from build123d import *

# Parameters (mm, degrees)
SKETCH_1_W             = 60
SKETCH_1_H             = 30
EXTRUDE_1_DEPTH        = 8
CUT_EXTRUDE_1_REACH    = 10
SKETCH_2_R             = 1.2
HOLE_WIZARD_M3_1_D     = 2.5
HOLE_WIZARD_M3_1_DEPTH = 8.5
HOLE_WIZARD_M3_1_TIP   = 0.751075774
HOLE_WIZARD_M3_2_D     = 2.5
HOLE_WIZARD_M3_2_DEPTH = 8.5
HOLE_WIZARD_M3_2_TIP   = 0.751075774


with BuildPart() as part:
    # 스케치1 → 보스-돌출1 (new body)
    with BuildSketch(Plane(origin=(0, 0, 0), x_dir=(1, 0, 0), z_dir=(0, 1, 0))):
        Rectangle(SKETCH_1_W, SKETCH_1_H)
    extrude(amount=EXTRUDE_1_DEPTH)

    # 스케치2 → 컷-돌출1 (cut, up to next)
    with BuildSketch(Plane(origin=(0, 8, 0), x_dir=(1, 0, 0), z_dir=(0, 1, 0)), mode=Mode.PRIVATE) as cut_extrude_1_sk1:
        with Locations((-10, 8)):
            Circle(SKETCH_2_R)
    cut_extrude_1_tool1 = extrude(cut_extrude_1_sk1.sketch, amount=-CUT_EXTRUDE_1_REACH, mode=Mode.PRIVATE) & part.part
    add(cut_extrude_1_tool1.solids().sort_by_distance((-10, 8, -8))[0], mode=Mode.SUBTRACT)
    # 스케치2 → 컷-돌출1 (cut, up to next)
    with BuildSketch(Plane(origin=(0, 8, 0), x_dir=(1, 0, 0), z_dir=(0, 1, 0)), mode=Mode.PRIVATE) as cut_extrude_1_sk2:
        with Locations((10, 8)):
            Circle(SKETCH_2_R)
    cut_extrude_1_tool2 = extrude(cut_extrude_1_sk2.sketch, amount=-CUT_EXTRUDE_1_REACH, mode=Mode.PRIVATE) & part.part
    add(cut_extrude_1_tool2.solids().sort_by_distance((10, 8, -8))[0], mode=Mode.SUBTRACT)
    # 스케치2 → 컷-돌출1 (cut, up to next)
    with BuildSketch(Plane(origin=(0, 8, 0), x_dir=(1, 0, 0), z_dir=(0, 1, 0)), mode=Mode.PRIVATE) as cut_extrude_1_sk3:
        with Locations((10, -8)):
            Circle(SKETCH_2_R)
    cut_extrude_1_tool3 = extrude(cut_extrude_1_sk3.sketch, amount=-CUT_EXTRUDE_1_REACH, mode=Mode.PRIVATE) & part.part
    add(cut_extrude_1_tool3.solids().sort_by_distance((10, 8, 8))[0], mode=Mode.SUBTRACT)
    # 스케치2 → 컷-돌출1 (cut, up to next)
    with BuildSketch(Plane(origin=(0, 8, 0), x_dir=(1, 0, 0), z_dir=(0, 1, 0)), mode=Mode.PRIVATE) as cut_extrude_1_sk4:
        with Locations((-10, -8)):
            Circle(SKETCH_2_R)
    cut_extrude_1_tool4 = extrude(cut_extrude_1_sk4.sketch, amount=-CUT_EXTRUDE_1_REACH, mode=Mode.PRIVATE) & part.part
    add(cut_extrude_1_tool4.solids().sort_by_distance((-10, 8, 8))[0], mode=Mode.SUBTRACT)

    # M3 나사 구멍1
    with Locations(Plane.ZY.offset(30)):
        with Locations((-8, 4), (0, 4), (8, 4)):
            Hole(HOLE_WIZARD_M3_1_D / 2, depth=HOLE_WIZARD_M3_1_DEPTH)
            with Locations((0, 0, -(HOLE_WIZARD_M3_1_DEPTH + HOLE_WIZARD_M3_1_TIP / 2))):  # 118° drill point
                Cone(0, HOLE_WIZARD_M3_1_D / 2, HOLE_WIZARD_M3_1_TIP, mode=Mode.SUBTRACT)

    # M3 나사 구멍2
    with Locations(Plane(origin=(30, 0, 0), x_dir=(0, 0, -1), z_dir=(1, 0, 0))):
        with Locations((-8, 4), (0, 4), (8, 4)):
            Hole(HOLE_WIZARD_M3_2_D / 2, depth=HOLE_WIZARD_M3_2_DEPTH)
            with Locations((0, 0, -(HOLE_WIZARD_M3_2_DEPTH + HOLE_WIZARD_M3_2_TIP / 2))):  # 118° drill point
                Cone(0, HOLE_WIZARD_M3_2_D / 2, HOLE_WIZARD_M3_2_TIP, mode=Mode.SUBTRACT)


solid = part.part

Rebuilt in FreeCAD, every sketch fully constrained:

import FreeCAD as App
import Part
import Sketcher

V = App.Vector
Q = App.Units.Quantity


def add_polygon(sketch, points):
    """Adds a closed chain of lines whose ends are joined by coincident constraints."""
    first, n = sketch.GeometryCount, len(points)
    for a, b in zip(points, points[1:] + points[:1]):
        sketch.addGeometry(Part.LineSegment(App.Vector(*a, 0), App.Vector(*b, 0)), False)
    for i in range(n):
        sketch.addConstraint(Sketcher.Constraint("Coincident", first + i, 2, first + (i + 1) % n, 1))

doc = App.newDocument("Part")
params = doc.addObject("Spreadsheet::Sheet", "Params")
for row, (alias, value) in enumerate([
    ("sketch1_width", "60 mm"),
    ("sketch1_height", "30 mm"),
    ("pad1_length", "8 mm"),
    ("sketch2_diameter", "2.4 mm"),
    ("sketch3_diameter", "2.4 mm"),
    ("sketch4_diameter", "2.4 mm"),
    ("sketch5_diameter", "2.4 mm"),
    ("sketch6_diameter", "2.5 mm"),
    ("hole_diameter", "2.5 mm"),
    ("hole_depth", "8.5 mm"),
    ("sketch7_diameter", "2.5 mm"),
    ("hole2_diameter", "2.5 mm"),
    ("hole2_depth", "8.5 mm"),
], start=1):
    params.set(f"A{row}", alias)
    params.set(f"B{row}", "=" + value)
    params.setAlias(f"B{row}", alias)

body = doc.addObject("PartDesign::Body", "Body")

# Sketch on XZ plane
sketch1 = doc.addObject("Sketcher::SketchObject", "Sketch")
body.addObject(sketch1)
sketch1.AttachmentSupport = (doc.XZ_Plane, [""])
sketch1.MapMode = "FlatFace"
add_polygon(sketch1, [(-30, -15), (-30, 15), (30, 15), (30, -15)])  # lines 0-3
sketch1.addConstraint([
    Sketcher.Constraint("Vertical", 0),
    Sketcher.Constraint("Horizontal", 1),
    Sketcher.Constraint("Vertical", 2),
    Sketcher.Constraint("Horizontal", 3),
    Sketcher.Constraint("Symmetric", 0, 2, 2, 2, -1, 1),
    Sketcher.Constraint("DistanceX", 1, 1, 1, 2, Q("60 mm")),
    Sketcher.Constraint("DistanceY", 0, 1, 0, 2, Q("30 mm")),
])
sketch1.setExpression("Constraints[9]", "Params.sketch1_width")
sketch1.setExpression("Constraints[10]", "Params.sketch1_height")
pad1 = doc.addObject("PartDesign::Pad", "Pad")
body.addObject(pad1)
pad1.Profile = sketch1
pad1.setExpression("Length", "Params.pad1_length")
pad1.Reversed = True

# Sketch on XZ plane
sketch2 = doc.addObject("Sketcher::SketchObject", "Sketch001")
body.addObject(sketch2)
sketch2.AttachmentSupport = (doc.XZ_Plane, [""])
sketch2.MapMode = "FlatFace"
sketch2.AttachmentOffset = App.Placement(V(0, 0, -8), App.Rotation())
sketch2.addGeometry(Part.Circle(V(-10, -8, 0), V(0, 0, 1), 1.2), False)
sketch2.addConstraint([
    Sketcher.Constraint("Diameter", 0, Q("2.4 mm")),
    Sketcher.Constraint("DistanceX", 0, 3, -1, 1, Q("10 mm")),
    Sketcher.Constraint("DistanceY", 0, 3, -1, 1, Q("8 mm")),
])
sketch2.setExpression("Constraints[0]", "Params.sketch2_diameter")
pocket1 = doc.addObject("PartDesign::Pocket", "Pocket")
body.addObject(pocket1)
pocket1.Profile = sketch2
pocket1.Type = "UpToFirst"
pocket1.Reversed = True

# Sketch on XZ plane
sketch3 = doc.addObject("Sketcher::SketchObject", "Sketch002")
body.addObject(sketch3)
sketch3.AttachmentSupport = (doc.XZ_Plane, [""])
sketch3.MapMode = "FlatFace"
sketch3.AttachmentOffset = App.Placement(V(0, 0, -8), App.Rotation())
sketch3.addGeometry(Part.Circle(V(10, -8, 0), V(0, 0, 1), 1.2), False)
sketch3.addConstraint([
    Sketcher.Constraint("Diameter", 0, Q("2.4 mm")),
    Sketcher.Constraint("DistanceX", -1, 1, 0, 3, Q("10 mm")),
    Sketcher.Constraint("DistanceY", 0, 3, -1, 1, Q("8 mm")),
])
sketch3.setExpression("Constraints[0]", "Params.sketch3_diameter")
pocket2 = doc.addObject("PartDesign::Pocket", "Pocket001")
body.addObject(pocket2)
pocket2.Profile = sketch3
pocket2.Type = "UpToFirst"
pocket2.Reversed = True

# Sketch on XZ plane
sketch4 = doc.addObject("Sketcher::SketchObject", "Sketch003")
body.addObject(sketch4)
sketch4.AttachmentSupport = (doc.XZ_Plane, [""])
sketch4.MapMode = "FlatFace"
sketch4.AttachmentOffset = App.Placement(V(0, 0, -8), App.Rotation())
sketch4.addGeometry(Part.Circle(V(10, 8, 0), V(0, 0, 1), 1.2), False)
sketch4.addConstraint([
    Sketcher.Constraint("Diameter", 0, Q("2.4 mm")),
    Sketcher.Constraint("DistanceX", -1, 1, 0, 3, Q("10 mm")),
    Sketcher.Constraint("DistanceY", -1, 1, 0, 3, Q("8 mm")),
])
sketch4.setExpression("Constraints[0]", "Params.sketch4_diameter")
pocket3 = doc.addObject("PartDesign::Pocket", "Pocket002")
body.addObject(pocket3)
pocket3.Profile = sketch4
pocket3.Type = "UpToFirst"
pocket3.Reversed = True

# Sketch on XZ plane
sketch5 = doc.addObject("Sketcher::SketchObject", "Sketch004")
body.addObject(sketch5)
sketch5.AttachmentSupport = (doc.XZ_Plane, [""])
sketch5.MapMode = "FlatFace"
sketch5.AttachmentOffset = App.Placement(V(0, 0, -8), App.Rotation())
sketch5.addGeometry(Part.Circle(V(-10, 8, 0), V(0, 0, 1), 1.2), False)
sketch5.addConstraint([
    Sketcher.Constraint("Diameter", 0, Q("2.4 mm")),
    Sketcher.Constraint("DistanceX", 0, 3, -1, 1, Q("10 mm")),
    Sketcher.Constraint("DistanceY", -1, 1, 0, 3, Q("8 mm")),
])
sketch5.setExpression("Constraints[0]", "Params.sketch5_diameter")
pocket4 = doc.addObject("PartDesign::Pocket", "Pocket003")
body.addObject(pocket4)
pocket4.Profile = sketch5
pocket4.Type = "UpToFirst"
pocket4.Reversed = True

# Sketch on YZ plane
sketch6 = doc.addObject("Sketcher::SketchObject", "Sketch005")
body.addObject(sketch6)
sketch6.AttachmentSupport = (doc.YZ_Plane, [""])
sketch6.MapMode = "FlatFace"
sketch6.AttachmentOffset = App.Placement(V(0, 0, -30), App.Rotation())
sketch6.addGeometry([
    Part.Circle(V(4, -8, 0), V(0, 0, 1), 1.2),
    Part.Circle(V(4, 0, 0), V(0, 0, 1), 1.2),
    Part.Circle(V(4, 8, 0), V(0, 0, 1), 1.2),
], False)
sketch6.addConstraint([
    Sketcher.Constraint("Equal", 0, 1),
    Sketcher.Constraint("Equal", 1, 2),
    Sketcher.Constraint("Symmetric", 0, 3, 2, 3, -1),
    Sketcher.Constraint("PointOnObject", 1, 3, -1),
    Sketcher.Constraint("Vertical", 0, 3, 1, 3),
    Sketcher.Constraint("Diameter", 0, Q("2.5 mm")),
    Sketcher.Constraint("DistanceX", -1, 1, 0, 3, Q("4 mm")),
    Sketcher.Constraint("DistanceY", 0, 3, -1, 1, Q("8 mm")),
])
sketch6.setExpression("Constraints[5]", "Params.sketch6_diameter")
doc.recompute()
hole = doc.addObject("PartDesign::Hole", "Hole")
body.addObject(hole)
hole.Profile = sketch6
hole.ThreadType = "None"
hole.setExpression("Diameter", "Params.hole_diameter")
hole.DepthType = "Dimension"
hole.setExpression("Depth", "Params.hole_depth")
hole.DrillPoint = "Angled"
hole.DrillPointAngle = 118
hole.Reversed = True

# Sketch on YZ plane
sketch7 = doc.addObject("Sketcher::SketchObject", "Sketch006")
body.addObject(sketch7)
sketch7.AttachmentSupport = (doc.YZ_Plane, [""])
sketch7.MapMode = "FlatFace"
sketch7.AttachmentOffset = App.Placement(V(0, 0, 30), App.Rotation())
sketch7.addGeometry([
    Part.Circle(V(4, 8, 0), V(0, 0, 1), 1.2),
    Part.Circle(V(4, 0, 0), V(0, 0, 1), 1.2),
    Part.Circle(V(4, -8, 0), V(0, 0, 1), 1.2),
], False)
sketch7.addConstraint([
    Sketcher.Constraint("Equal", 0, 1),
    Sketcher.Constraint("Equal", 1, 2),
    Sketcher.Constraint("Symmetric", 0, 3, 2, 3, -1),
    Sketcher.Constraint("PointOnObject", 1, 3, -1),
    Sketcher.Constraint("Vertical", 0, 3, 1, 3),
    Sketcher.Constraint("Diameter", 0, Q("2.5 mm")),
    Sketcher.Constraint("DistanceX", -1, 1, 0, 3, Q("4 mm")),
    Sketcher.Constraint("DistanceY", -1, 1, 0, 3, Q("8 mm")),
])
sketch7.setExpression("Constraints[5]", "Params.sketch7_diameter")
doc.recompute()
hole2 = doc.addObject("PartDesign::Hole", "Hole001")
body.addObject(hole2)
hole2.Profile = sketch7
hole2.ThreadType = "None"
hole2.setExpression("Diameter", "Params.hole2_diameter")
hole2.DepthType = "Dimension"
hole2.setExpression("Depth", "Params.hole2_depth")
hole2.DrillPoint = "Angled"
hole2.DrillPointAngle = 118

doc.recompute()
